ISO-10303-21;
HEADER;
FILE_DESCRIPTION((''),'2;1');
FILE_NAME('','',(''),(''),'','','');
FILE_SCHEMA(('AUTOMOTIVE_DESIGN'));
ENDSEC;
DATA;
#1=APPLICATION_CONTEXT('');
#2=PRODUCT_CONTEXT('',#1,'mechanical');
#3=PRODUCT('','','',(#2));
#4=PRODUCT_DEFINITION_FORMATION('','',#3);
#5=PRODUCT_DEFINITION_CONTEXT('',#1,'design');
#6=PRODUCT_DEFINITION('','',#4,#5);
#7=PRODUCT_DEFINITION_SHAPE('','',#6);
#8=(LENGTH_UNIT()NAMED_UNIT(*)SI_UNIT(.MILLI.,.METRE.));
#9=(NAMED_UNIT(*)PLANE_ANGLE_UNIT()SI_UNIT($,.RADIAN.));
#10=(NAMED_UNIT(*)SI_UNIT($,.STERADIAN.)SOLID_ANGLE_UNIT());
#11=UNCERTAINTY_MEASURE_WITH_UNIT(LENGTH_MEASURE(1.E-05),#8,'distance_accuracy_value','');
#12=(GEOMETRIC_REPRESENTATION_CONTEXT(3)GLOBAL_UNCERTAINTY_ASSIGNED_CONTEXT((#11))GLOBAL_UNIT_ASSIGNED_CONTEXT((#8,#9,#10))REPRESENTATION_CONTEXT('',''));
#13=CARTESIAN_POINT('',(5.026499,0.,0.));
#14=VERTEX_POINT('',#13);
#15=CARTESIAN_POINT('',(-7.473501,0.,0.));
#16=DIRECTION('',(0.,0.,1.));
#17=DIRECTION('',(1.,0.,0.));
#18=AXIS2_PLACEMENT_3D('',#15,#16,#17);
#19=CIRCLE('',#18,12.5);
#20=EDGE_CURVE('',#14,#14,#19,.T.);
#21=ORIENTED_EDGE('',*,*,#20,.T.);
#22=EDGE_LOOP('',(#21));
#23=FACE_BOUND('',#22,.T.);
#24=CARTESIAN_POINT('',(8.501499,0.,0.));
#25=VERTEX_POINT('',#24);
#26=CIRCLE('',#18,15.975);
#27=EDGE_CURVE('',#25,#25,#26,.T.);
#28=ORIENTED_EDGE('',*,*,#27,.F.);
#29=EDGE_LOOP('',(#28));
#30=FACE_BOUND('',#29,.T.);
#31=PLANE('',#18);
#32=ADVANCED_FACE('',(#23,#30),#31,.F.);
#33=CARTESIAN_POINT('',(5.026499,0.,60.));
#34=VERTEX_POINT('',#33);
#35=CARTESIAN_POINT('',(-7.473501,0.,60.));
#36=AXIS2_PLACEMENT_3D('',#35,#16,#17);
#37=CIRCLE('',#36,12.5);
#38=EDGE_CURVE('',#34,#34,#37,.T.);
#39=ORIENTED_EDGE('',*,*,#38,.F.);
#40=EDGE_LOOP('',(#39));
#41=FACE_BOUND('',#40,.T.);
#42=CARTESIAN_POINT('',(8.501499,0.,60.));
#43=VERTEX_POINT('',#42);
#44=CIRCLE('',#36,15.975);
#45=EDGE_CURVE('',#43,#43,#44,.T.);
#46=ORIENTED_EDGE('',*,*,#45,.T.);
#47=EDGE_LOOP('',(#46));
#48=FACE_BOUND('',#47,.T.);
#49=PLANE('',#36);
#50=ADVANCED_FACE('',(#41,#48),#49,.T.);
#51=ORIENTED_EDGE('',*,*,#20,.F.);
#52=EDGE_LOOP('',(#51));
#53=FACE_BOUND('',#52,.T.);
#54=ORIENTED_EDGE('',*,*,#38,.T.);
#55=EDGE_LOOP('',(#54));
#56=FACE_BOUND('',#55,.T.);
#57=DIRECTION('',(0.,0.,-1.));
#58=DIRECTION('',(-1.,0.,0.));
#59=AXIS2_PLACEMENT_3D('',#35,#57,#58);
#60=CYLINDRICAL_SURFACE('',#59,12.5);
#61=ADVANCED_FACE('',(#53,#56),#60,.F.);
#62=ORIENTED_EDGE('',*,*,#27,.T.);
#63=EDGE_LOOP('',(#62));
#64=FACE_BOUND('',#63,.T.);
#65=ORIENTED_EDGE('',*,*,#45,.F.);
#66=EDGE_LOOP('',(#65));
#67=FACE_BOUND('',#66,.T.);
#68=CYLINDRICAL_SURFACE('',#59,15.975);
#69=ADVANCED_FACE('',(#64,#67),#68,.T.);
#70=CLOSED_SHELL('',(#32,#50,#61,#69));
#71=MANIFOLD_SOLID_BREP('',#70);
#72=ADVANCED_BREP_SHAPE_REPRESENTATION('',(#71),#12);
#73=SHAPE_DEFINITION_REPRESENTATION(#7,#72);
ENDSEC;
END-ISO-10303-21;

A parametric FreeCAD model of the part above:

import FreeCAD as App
import Part
import Sketcher

doc = App.newDocument("Part")
params = doc.addObject("Spreadsheet::Sheet", "Params")
for row, (alias, value) in enumerate([
    ("sketch1_diameter", "25 mm"),
    ("sketch1_diameter2", "31.95 mm"),
    ("pad1_length", "60 mm"),
], start=1):
    params.set(f"A{row}", alias)
    params.set(f"B{row}", "=" + value)
    params.setAlias(f"B{row}", alias)

body = doc.addObject("PartDesign::Body", "Body")

sketch1 = body.newObject("Sketcher::SketchObject", "Sketch")
sketch1.AttachmentSupport = (doc.getObject("XY_Plane"), [""])
sketch1.MapMode = "FlatFace"
sketch1.addGeometry([
    Part.Circle(App.Vector(-7.473501, 0, 0), App.Vector(0, 0, 1), 15.975),
    Part.Circle(App.Vector(-7.473501, 0, 0), App.Vector(0, 0, 1), 12.5),
], False)
sketch1.addConstraint([
    Sketcher.Constraint("Coincident", 1, 3, 0, 3),
    Sketcher.Constraint("PointOnObject", 0, 3, -1),
    Sketcher.Constraint("Diameter", 1, 25.0),
    Sketcher.Constraint("Diameter", 0, 31.95),
    Sketcher.Constraint("DistanceX", 0, 3, -1, 1, 7.473501),
])
sketch1.setExpression("Constraints[2]", "Params.sketch1_diameter")
sketch1.setExpression("Constraints[3]", "Params.sketch1_diameter2")
pad1 = body.newObject("PartDesign::Pad", "Pad")
pad1.Profile = sketch1
pad1.setExpression("Length", "Params.pad1_length")

doc.recompute()
